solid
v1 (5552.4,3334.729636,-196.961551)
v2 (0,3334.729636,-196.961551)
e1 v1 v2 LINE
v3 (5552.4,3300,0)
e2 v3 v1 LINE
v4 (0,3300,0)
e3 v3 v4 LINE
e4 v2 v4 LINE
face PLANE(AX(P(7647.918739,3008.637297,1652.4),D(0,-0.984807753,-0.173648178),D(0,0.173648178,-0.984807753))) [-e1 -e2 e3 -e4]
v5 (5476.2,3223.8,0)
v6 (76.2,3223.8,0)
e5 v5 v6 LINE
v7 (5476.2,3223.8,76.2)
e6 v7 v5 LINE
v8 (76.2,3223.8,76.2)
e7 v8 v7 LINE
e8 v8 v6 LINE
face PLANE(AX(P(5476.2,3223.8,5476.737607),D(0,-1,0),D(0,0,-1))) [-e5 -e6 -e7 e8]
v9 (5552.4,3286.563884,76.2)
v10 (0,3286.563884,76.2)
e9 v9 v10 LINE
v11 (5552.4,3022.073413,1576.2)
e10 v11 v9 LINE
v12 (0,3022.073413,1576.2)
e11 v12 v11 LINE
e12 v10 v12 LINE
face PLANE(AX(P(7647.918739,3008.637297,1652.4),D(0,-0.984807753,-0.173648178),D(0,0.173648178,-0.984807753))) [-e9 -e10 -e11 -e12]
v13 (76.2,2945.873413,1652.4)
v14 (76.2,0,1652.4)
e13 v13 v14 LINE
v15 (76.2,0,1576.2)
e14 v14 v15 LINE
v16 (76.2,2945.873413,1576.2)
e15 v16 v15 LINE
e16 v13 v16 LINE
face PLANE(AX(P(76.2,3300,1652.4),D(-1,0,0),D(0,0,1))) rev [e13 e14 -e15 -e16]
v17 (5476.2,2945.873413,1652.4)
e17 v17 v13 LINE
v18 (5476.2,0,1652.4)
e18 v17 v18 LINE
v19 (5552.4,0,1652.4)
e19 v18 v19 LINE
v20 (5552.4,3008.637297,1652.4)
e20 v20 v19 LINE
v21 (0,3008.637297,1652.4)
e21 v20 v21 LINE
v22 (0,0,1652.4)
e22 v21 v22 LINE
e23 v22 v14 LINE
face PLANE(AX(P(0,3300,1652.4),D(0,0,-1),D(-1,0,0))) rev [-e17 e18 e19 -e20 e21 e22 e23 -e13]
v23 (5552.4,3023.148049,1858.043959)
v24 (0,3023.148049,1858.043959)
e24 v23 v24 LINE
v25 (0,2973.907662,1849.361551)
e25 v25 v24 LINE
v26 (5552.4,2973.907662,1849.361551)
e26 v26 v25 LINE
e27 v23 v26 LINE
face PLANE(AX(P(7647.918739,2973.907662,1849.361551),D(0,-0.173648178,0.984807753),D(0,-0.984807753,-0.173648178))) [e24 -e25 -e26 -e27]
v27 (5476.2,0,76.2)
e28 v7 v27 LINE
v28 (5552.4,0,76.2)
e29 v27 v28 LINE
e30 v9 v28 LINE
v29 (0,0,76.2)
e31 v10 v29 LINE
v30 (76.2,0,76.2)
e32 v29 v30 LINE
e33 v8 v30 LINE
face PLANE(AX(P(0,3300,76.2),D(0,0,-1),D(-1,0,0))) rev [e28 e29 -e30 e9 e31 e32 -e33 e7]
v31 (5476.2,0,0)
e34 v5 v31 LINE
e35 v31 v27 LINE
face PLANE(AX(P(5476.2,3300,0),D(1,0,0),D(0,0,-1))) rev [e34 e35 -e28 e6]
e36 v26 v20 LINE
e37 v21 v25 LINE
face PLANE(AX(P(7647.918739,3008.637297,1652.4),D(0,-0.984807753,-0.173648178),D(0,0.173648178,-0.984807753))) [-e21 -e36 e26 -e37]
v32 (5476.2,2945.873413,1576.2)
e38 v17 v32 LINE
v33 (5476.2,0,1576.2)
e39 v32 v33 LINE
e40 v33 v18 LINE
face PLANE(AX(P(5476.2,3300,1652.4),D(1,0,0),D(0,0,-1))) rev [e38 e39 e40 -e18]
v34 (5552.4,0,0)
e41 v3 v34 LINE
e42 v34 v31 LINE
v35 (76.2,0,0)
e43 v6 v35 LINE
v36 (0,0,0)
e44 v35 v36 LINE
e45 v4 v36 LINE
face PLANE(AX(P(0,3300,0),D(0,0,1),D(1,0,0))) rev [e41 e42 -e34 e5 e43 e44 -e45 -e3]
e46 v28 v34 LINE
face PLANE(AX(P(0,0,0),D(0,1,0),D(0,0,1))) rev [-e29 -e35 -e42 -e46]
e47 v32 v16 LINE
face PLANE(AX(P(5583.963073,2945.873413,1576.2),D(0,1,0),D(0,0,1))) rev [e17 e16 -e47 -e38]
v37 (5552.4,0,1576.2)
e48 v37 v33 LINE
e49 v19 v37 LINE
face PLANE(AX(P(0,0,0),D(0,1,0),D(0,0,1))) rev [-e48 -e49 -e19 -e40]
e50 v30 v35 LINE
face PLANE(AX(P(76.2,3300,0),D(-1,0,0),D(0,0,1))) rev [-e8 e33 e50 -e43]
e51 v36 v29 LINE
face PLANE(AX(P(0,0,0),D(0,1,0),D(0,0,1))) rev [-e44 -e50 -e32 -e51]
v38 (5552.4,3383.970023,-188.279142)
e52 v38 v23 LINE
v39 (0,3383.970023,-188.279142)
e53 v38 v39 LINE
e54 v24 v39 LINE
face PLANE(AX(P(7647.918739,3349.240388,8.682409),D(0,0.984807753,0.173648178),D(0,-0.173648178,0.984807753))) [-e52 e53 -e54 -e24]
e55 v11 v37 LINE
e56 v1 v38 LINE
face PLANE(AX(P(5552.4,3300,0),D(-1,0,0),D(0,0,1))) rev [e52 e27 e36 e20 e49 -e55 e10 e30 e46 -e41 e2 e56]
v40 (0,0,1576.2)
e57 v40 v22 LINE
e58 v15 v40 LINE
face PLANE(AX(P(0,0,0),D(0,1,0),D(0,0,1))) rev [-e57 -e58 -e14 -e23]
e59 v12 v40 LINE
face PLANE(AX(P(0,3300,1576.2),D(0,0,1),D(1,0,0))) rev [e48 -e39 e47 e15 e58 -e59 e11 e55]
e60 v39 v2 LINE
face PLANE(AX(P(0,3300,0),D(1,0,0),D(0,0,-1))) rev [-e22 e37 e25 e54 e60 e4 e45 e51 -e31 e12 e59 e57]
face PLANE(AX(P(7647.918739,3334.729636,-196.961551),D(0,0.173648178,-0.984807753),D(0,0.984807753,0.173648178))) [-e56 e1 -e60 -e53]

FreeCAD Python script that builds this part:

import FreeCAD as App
import Part
import Sketcher
from FreeCAD import Vector
Q = App.Units.Quantity


def add_polygon(sketch, points):
    """Adds a closed chain of lines whose ends are joined by coincident constraints."""
    first, n = sketch.GeometryCount, len(points)
    for a, b in zip(points, points[1:] + points[:1]):
        sketch.addGeometry(Part.LineSegment(App.Vector(*a, 0), App.Vector(*b, 0)), False)
    for i in range(n):
        sketch.addConstraint(Sketcher.Constraint("Coincident", first + i, 2, first + (i + 1) % n, 1))

doc = App.newDocument("Part")
params = doc.addObject("Spreadsheet::Sheet", "Params")
for row, (alias, value) in enumerate([
    ("sketch1_width", "76.2 mm"),
    ("pad1_length", "3300 mm"),
    ("sketch2_width", "76.2 mm"),
    ("pad2_length", "3300 mm"),
    ("sketch3_width", "76.2 mm"),
    ("pad3_length", "3300 mm"),
    ("sketch4_width", "76.2 mm"),
    ("pad4_length", "3300 mm"),
    ("pad5_length", "5552.4 mm"),
    ("sketch6_length", "200 mm"),
    ("sketch6_length2", "50 mm"),
    ("pad6_length", "5552.4 mm"),
    ("sketch7_width", "5400 mm"),
    ("sketch7_height", "76.2 mm"),
    ("pad7_length", "76.2 mm"),
    ("sketch8_width", "76.2 mm"),
    ("pad8_length", "5400 mm"),
], start=1):
    params.set(f"A{row}", alias)
    params.set(f"B{row}", "=" + value)
    params.setAlias(f"B{row}", alias)

body = doc.addObject("PartDesign::Body", "Body")

sketch1 = body.newObject("Sketcher::SketchObject", "Sketch")
sketch1.AttachmentSupport = (doc.getObject("XZ_Plane"), [""])
sketch1.MapMode = "FlatFace"
add_polygon(sketch1, [(0, 0), (0, 76.2), (76.2, 76.2), (76.2, 0)])
sketch1.addConstraint(Sketcher.Constraint("Vertical", 0))
sketch1.addConstraint(Sketcher.Constraint("Horizontal", 1))
sketch1.addConstraint(Sketcher.Constraint("Vertical", 2))
sketch1.addConstraint(Sketcher.Constraint("Horizontal", 3))
sketch1.addConstraint(Sketcher.Constraint("Coincident", 3, 2, -1, 1))
sketch1.addConstraint(Sketcher.Constraint("Equal", 3, 0))
sketch1.addConstraint(Sketcher.Constraint("DistanceX", 1, 1, 1, 2, Q("76.2 mm")))
sketch1.setExpression("Constraints[10]", "Params.sketch1_width")
pad1 = body.newObject("PartDesign::Pad", "Pad")
pad1.Profile = sketch1
pad1.setExpression("Length", "Params.pad1_length")
pad1.Reversed = True
body2 = doc.addObject("PartDesign::Body", "Body001")

sketch2 = body2.newObject("Sketcher::SketchObject", "Sketch001")
sketch2.AttachmentSupport = (doc.getObject("XZ_Plane001"), [""])
sketch2.MapMode = "FlatFace"
add_polygon(sketch2, [(5476.2, 0), (5476.2, 76.2), (5552.4, 76.2), (5552.4, 0)])
sketch2.addConstraint(Sketcher.Constraint("Vertical", 0))
sketch2.addConstraint(Sketcher.Constraint("Horizontal", 1))
sketch2.addConstraint(Sketcher.Constraint("Vertical", 2))
sketch2.addConstraint(Sketcher.Constraint("Horizontal", 3))
sketch2.addConstraint(Sketcher.Constraint("PointOnObject", 2, 2, -1))
sketch2.addConstraint(Sketcher.Constraint("Equal", 3, 0))
sketch2.addConstraint(Sketcher.Constraint("DistanceX", 1, 1, 1, 2, Q("76.2 mm")))
sketch2.addConstraint(Sketcher.Constraint("DistanceX", -1, 1, 0, 2, Q("5476.2 mm")))
sketch2.setExpression("Constraints[10]", "Params.sketch2_width")
pad2 = body2.newObject("PartDesign::Pad", "Pad001")
pad2.Profile = sketch2
pad2.setExpression("Length", "Params.pad2_length")
pad2.Reversed = True
body3 = doc.addObject("PartDesign::Body", "Body002")

sketch3 = body3.newObject("Sketcher::SketchObject", "Sketch002")
sketch3.AttachmentSupport = (doc.getObject("XZ_Plane002"), [""])
sketch3.MapMode = "FlatFace"
add_polygon(sketch3, [(5476.2, 1576.2), (5476.2, 1652.4), (5552.4, 1652.4), (5552.4, 1576.2)])
sketch3.addConstraint(Sketcher.Constraint("Vertical", 0))
sketch3.addConstraint(Sketcher.Constraint("Horizontal", 1))
sketch3.addConstraint(Sketcher.Constraint("Vertical", 2))
sketch3.addConstraint(Sketcher.Constraint("Horizontal", 3))
sketch3.addConstraint(Sketcher.Constraint("Equal", 3, 0))
sketch3.addConstraint(Sketcher.Constraint("DistanceX", 1, 1, 1, 2, Q("76.2 mm")))
sketch3.addConstraint(Sketcher.Constraint("DistanceX", -1, 1, 0, 2, Q("5476.2 mm")))
sketch3.addConstraint(Sketcher.Constraint("DistanceY", -1, 1, 0, 2, Q("1652.4 mm")))
sketch3.setExpression("Constraints[9]", "Params.sketch3_width")
pad3 = body3.newObject("PartDesign::Pad", "Pad002")
pad3.Profile = sketch3
pad3.setExpression("Length", "Params.pad3_length")
pad3.Reversed = True
body4 = doc.addObject("PartDesign::Body", "Body003")

sketch4 = body4.newObject("Sketcher::SketchObject", "Sketch003")
sketch4.AttachmentSupport = (doc.getObject("XZ_Plane003"), [""])
sketch4.MapMode = "FlatFace"
add_polygon(sketch4, [(0, 1576.2), (0, 1652.4), (76.2, 1652.4), (76.2, 1576.2)])
sketch4.addConstraint(Sketcher.Constraint("Vertical", 0))
sketch4.addConstraint(Sketcher.Constraint("Horizontal", 1))
sketch4.addConstraint(Sketcher.Constraint("Vertical", 2))
sketch4.addConstraint(Sketcher.Constraint("Horizontal", 3))
sketch4.addConstraint(Sketcher.Constraint("PointOnObject", 0, 2, -2))
sketch4.addConstraint(Sketcher.Constraint("Equal", 3, 0))
sketch4.addConstraint(Sketcher.Constraint("DistanceX", 1, 1, 1, 2, Q("76.2 mm")))
sketch4.addConstraint(Sketcher.Constraint("DistanceY", -1, 1, 0, 2, Q("1652.4 mm")))
sketch4.setExpression("Constraints[10]", "Params.sketch4_width")
pad4 = body4.newObject("PartDesign::Pad", "Pad003")
pad4.Profile = sketch4
pad4.setExpression("Length", "Params.pad4_length")
pad4.Reversed = True
body5 = doc.addObject("PartDesign::Body", "Body004")

sketch5 = body5.newObject("Sketcher::SketchObject", "Sketch004")
sketch5.AttachmentSupport = (doc.getObject("YZ_Plane004"), [""])
sketch5.MapMode = "FlatFace"
add_polygon(sketch5, [(2914.951693, 2183.717464), (3300, 0), (4614.378524, 0), (4680.194752, 2226.424126)])
sketch5.addConstraint(Sketcher.Constraint("Horizontal", 1))
sketch5.addConstraint(Sketcher.Constraint("PointOnObject", 0, 2, -1))
sketch5.addConstraint(Sketcher.Constraint("Angle", 0, Q("-80 deg")))
sketch5.addConstraint(Sketcher.Constraint("DistanceX", -1, 1, 0, 2, Q("3300 mm")))
sketch5.addConstraint(Sketcher.Constraint("DistanceX", 1, 1, 1, 2, Q("1314.378524 mm")))
sketch5.addConstraint(Sketcher.Constraint("DistanceX", 1, 2, 2, 2, Q("65.816228 mm")))
sketch5.addConstraint(Sketcher.Constraint("DistanceX", 3, 2, 2, 2, Q("1765.243059 mm")))
sketch5.addConstraint(Sketcher.Constraint("Distance", 2, Q("2227.396724 mm")))
pad5 = body5.newObject("PartDesign::Pad", "Pad004")
pad5.Profile = sketch5
pad5.setExpression("Length", "Params.pad5_length")
doc.recompute()

body6 = doc.addObject("PartDesign::Body", "Body005")
body6.BaseFeature = body5
boolean = body.newObject("PartDesign::Boolean", "Boolean")
boolean.Type = "Cut"
boolean.addObjects([body6])
doc.recompute()

body7 = doc.addObject("PartDesign::Body", "Body006")
body7.BaseFeature = body5
boolean2 = body2.newObject("PartDesign::Boolean", "Boolean001")
boolean2.Type = "Cut"
boolean2.addObjects([body7])
doc.recompute()

body8 = doc.addObject("PartDesign::Body", "Body007")
body8.BaseFeature = body5
boolean3 = body3.newObject("PartDesign::Boolean", "Boolean002")
boolean3.Type = "Cut"
boolean3.addObjects([body8])
doc.recompute()

boolean4 = body4.newObject("PartDesign::Boolean", "Boolean003")
boolean4.Type = "Cut"
boolean4.addObjects([body5])
body.AllowCompound = True
doc.recompute()

boolean5 = body.newObject("PartDesign::Boolean", "Boolean004")
boolean5.Type = "Fuse"
boolean5.addObjects([body2])
doc.recompute()

boolean6 = body.newObject("PartDesign::Boolean", "Boolean005")
boolean6.Type = "Fuse"
boolean6.addObjects([body3])
doc.recompute()

boolean7 = body.newObject("PartDesign::Boolean", "Boolean006")
boolean7.Type = "Fuse"
boolean7.addObjects([body4])

sketch6 = body.newObject("Sketcher::SketchObject", "Sketch005")
sketch6.AttachmentSupport = (doc.getObject("YZ_Plane"), [""])
sketch6.MapMode = "FlatFace"
add_polygon(sketch6, [(3300, 0), (3008.637297, 1652.4), (2973.907662, 1849.361551), (3023.148049, 1858.043959), (3057.877685, 1661.082409), (3349.240388, 8.682409), (3383.970023, -188.279142), (3334.729636, -196.961551)])
sketch6.addConstraint(Sketcher.Constraint("PointOnObject", 7, 2, -1))
sketch6.addConstraint(Sketcher.Constraint("Parallel", 0, 1))
sketch6.addConstraint(Sketcher.Constraint("Perpendicular", 1, 2))
sketch6.addConstraint(Sketcher.Constraint("Perpendicular", 2, 3))
sketch6.addConstraint(Sketcher.Constraint("Parallel", 3, 4))
sketch6.addConstraint(Sketcher.Constraint("Parallel", 4, 5))
sketch6.addConstraint(Sketcher.Constraint("Perpendicular", 5, 6))
sketch6.addConstraint(Sketcher.Constraint("Perpendicular", 6, 7))
sketch6.addConstraint(Sketcher.Constraint("Equal", 1, 3))
sketch6.addConstraint(Sketcher.Constraint("Equal", 0, 4))
sketch6.addConstraint(Sketcher.Constraint("Equal", 3, 5))
sketch6.addConstraint(Sketcher.Constraint("Angle", 0, Q("100 deg")))
sketch6.addConstraint(Sketcher.Constraint("Distance", 1, Q("200 mm")))
sketch6.addConstraint(Sketcher.Constraint("Distance", 2, Q("50 mm")))
sketch6.addConstraint(Sketcher.Constraint("DistanceX", -1, 1, 7, 2, Q("3300 mm")))
sketch6.addConstraint(Sketcher.Constraint("DistanceY", -1, 1, 0, 2, Q("1652.4 mm")))
sketch6.setExpression("Constraints[20]", "Params.sketch6_length")
sketch6.setExpression("Constraints[21]", "Params.sketch6_length2")
pad6 = body.newObject("PartDesign::Pad", "Pad005")
pad6.Profile = sketch6
pad6.setExpression("Length", "Params.pad6_length")

sketch7 = body.newObject("Sketcher::SketchObject", "Sketch006")
sketch7.AttachmentSupport = (doc.getObject("XY_Plane"), [""])
sketch7.MapMode = "FlatFace"
add_polygon(sketch7, [(5476.2, 3300), (5476.2, 3223.8), (76.2, 3223.8), (76.2, 3300)])
sketch7.addConstraint(Sketcher.Constraint("Vertical", 0))
sketch7.addConstraint(Sketcher.Constraint("Horizontal", 1))
sketch7.addConstraint(Sketcher.Constraint("Vertical", 2))
sketch7.addConstraint(Sketcher.Constraint("Horizontal", 3))
sketch7.addConstraint(Sketcher.Constraint("DistanceX", 1, 2, 1, 1, Q("5400 mm")))
sketch7.addConstraint(Sketcher.Constraint("DistanceY", 0, 2, 0, 1, Q("76.2 mm")))
sketch7.addConstraint(Sketcher.Constraint("DistanceY", -1, 1, 2, 2, Q("3300 mm")))
sketch7.addConstraint(Sketcher.Constraint("DistanceX", -1, 1, 0, 2, Q("5476.2 mm")))
sketch7.setExpression("Constraints[8]", "Params.sketch7_width")
sketch7.setExpression("Constraints[9]", "Params.sketch7_height")
pad7 = body.newObject("PartDesign::Pad", "Pad006")
pad7.Profile = sketch7
pad7.setExpression("Length", "Params.pad7_length")

sketch8 = body.newObject("Sketcher::SketchObject", "Sketch007")
sketch8.AttachmentSupport = (doc.getObject("YZ_Plane"), [""])
sketch8.MapMode = "FlatFace"
sketch8.AttachmentOffset = App.Placement(Vector(0, 0, 76.2), App.Rotation())
add_polygon(sketch8, [(2945.873413, 1576.2), (3022.073413, 1576.2), (3008.637297, 1652.4), (2945.873413, 1652.4)])
sketch8.addConstraint(Sketcher.Constraint("Horizontal", 0))
sketch8.addConstraint(Sketcher.Constraint("Horizontal", 2))
sketch8.addConstraint(Sketcher.Constraint("Vertical", 3))
sketch8.addConstraint(Sketcher.Constraint("Equal", 0, 3))
sketch8.addConstraint(Sketcher.Constraint("Angle", 1, Q("100 deg")))
sketch8.addConstraint(Sketcher.Constraint("DistanceX", 0, 1, 0, 2, Q("76.2 mm")))
sketch8.addConstraint(Sketcher.Constraint("DistanceY", -1, 1, 0, 2, Q("1576.2 mm")))
sketch8.addConstraint(Sketcher.Constraint("DistanceX", -1, 1, 0, 2, Q("3022.073413 mm")))
sketch8.setExpression("Constraints[9]", "Params.sketch8_width")
pad8 = body.newObject("PartDesign::Pad", "Pad007")
pad8.Profile = sketch8
pad8.setExpression("Length", "Params.pad8_length")

doc.recompute()
